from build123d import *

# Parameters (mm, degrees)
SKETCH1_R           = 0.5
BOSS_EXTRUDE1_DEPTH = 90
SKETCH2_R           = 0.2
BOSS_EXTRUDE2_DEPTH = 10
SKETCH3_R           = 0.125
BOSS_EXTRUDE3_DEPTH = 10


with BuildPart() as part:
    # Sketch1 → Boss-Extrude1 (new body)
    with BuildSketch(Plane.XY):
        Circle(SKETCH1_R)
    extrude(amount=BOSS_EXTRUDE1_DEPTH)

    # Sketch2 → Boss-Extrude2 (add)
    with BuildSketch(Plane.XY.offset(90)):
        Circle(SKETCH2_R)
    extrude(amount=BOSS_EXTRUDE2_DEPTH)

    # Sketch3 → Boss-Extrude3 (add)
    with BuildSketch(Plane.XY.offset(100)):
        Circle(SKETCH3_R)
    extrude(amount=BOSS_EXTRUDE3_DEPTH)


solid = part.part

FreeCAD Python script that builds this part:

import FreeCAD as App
import Part
import Sketcher
from FreeCAD import Vector

doc = App.newDocument("Part")
body = doc.addObject("PartDesign::Body", "Body")

# Sketch on XY plane
sketch1 = body.newObject("Sketcher::SketchObject", "Sketch")
sketch1.AttachmentSupport = (doc.getObject("XY_Plane"), [""])
sketch1.MapMode = "FlatFace"
sketch1.addGeometry(Part.Circle(Vector(0, 0, 0), Vector(0, 0, 1), 0.5), False)
sketch1.addConstraint([
    Sketcher.Constraint("Coincident", 0, 3, -1, 1),
    Sketcher.Constraint("Diameter", 0, 1.0),
])
pad1 = body.newObject("PartDesign::Pad", "Pad")
pad1.Profile = sketch1
pad1.Length = 90

# Sketch on XY plane
sketch2 = body.newObject("Sketcher::SketchObject", "Sketch001")
sketch2.AttachmentSupport = (doc.getObject("XY_Plane"), [""])
sketch2.MapMode = "FlatFace"
sketch2.AttachmentOffset = App.Placement(Vector(0, 0, 90), App.Rotation())
sketch2.addGeometry(Part.Circle(Vector(0, 0, 0), Vector(0, 0, 1), 0.2), False)
sketch2.addConstraint([
    Sketcher.Constraint("Coincident", 0, 3, -1, 1),
    Sketcher.Constraint("Diameter", 0, 0.4),
])
pad2 = body.newObject("PartDesign::Pad", "Pad001")
pad2.Profile = sketch2
pad2.Length = 10

# Sketch on XY plane
sketch3 = body.newObject("Sketcher::SketchObject", "Sketch002")
sketch3.AttachmentSupport = (doc.getObject("XY_Plane"), [""])
sketch3.MapMode = "FlatFace"
sketch3.AttachmentOffset = App.Placement(Vector(0, 0, 100), App.Rotation())
sketch3.addGeometry(Part.Circle(Vector(0, 0, 0), Vector(0, 0, 1), 0.12), False)
sketch3.addConstraint([
    Sketcher.Constraint("Coincident", 0, 3, -1, 1),
    Sketcher.Constraint("Diameter", 0, 0.25),
])
pad3 = body.newObject("PartDesign::Pad", "Pad002")
pad3.Profile = sketch3
pad3.Length = 10

doc.recompute()
